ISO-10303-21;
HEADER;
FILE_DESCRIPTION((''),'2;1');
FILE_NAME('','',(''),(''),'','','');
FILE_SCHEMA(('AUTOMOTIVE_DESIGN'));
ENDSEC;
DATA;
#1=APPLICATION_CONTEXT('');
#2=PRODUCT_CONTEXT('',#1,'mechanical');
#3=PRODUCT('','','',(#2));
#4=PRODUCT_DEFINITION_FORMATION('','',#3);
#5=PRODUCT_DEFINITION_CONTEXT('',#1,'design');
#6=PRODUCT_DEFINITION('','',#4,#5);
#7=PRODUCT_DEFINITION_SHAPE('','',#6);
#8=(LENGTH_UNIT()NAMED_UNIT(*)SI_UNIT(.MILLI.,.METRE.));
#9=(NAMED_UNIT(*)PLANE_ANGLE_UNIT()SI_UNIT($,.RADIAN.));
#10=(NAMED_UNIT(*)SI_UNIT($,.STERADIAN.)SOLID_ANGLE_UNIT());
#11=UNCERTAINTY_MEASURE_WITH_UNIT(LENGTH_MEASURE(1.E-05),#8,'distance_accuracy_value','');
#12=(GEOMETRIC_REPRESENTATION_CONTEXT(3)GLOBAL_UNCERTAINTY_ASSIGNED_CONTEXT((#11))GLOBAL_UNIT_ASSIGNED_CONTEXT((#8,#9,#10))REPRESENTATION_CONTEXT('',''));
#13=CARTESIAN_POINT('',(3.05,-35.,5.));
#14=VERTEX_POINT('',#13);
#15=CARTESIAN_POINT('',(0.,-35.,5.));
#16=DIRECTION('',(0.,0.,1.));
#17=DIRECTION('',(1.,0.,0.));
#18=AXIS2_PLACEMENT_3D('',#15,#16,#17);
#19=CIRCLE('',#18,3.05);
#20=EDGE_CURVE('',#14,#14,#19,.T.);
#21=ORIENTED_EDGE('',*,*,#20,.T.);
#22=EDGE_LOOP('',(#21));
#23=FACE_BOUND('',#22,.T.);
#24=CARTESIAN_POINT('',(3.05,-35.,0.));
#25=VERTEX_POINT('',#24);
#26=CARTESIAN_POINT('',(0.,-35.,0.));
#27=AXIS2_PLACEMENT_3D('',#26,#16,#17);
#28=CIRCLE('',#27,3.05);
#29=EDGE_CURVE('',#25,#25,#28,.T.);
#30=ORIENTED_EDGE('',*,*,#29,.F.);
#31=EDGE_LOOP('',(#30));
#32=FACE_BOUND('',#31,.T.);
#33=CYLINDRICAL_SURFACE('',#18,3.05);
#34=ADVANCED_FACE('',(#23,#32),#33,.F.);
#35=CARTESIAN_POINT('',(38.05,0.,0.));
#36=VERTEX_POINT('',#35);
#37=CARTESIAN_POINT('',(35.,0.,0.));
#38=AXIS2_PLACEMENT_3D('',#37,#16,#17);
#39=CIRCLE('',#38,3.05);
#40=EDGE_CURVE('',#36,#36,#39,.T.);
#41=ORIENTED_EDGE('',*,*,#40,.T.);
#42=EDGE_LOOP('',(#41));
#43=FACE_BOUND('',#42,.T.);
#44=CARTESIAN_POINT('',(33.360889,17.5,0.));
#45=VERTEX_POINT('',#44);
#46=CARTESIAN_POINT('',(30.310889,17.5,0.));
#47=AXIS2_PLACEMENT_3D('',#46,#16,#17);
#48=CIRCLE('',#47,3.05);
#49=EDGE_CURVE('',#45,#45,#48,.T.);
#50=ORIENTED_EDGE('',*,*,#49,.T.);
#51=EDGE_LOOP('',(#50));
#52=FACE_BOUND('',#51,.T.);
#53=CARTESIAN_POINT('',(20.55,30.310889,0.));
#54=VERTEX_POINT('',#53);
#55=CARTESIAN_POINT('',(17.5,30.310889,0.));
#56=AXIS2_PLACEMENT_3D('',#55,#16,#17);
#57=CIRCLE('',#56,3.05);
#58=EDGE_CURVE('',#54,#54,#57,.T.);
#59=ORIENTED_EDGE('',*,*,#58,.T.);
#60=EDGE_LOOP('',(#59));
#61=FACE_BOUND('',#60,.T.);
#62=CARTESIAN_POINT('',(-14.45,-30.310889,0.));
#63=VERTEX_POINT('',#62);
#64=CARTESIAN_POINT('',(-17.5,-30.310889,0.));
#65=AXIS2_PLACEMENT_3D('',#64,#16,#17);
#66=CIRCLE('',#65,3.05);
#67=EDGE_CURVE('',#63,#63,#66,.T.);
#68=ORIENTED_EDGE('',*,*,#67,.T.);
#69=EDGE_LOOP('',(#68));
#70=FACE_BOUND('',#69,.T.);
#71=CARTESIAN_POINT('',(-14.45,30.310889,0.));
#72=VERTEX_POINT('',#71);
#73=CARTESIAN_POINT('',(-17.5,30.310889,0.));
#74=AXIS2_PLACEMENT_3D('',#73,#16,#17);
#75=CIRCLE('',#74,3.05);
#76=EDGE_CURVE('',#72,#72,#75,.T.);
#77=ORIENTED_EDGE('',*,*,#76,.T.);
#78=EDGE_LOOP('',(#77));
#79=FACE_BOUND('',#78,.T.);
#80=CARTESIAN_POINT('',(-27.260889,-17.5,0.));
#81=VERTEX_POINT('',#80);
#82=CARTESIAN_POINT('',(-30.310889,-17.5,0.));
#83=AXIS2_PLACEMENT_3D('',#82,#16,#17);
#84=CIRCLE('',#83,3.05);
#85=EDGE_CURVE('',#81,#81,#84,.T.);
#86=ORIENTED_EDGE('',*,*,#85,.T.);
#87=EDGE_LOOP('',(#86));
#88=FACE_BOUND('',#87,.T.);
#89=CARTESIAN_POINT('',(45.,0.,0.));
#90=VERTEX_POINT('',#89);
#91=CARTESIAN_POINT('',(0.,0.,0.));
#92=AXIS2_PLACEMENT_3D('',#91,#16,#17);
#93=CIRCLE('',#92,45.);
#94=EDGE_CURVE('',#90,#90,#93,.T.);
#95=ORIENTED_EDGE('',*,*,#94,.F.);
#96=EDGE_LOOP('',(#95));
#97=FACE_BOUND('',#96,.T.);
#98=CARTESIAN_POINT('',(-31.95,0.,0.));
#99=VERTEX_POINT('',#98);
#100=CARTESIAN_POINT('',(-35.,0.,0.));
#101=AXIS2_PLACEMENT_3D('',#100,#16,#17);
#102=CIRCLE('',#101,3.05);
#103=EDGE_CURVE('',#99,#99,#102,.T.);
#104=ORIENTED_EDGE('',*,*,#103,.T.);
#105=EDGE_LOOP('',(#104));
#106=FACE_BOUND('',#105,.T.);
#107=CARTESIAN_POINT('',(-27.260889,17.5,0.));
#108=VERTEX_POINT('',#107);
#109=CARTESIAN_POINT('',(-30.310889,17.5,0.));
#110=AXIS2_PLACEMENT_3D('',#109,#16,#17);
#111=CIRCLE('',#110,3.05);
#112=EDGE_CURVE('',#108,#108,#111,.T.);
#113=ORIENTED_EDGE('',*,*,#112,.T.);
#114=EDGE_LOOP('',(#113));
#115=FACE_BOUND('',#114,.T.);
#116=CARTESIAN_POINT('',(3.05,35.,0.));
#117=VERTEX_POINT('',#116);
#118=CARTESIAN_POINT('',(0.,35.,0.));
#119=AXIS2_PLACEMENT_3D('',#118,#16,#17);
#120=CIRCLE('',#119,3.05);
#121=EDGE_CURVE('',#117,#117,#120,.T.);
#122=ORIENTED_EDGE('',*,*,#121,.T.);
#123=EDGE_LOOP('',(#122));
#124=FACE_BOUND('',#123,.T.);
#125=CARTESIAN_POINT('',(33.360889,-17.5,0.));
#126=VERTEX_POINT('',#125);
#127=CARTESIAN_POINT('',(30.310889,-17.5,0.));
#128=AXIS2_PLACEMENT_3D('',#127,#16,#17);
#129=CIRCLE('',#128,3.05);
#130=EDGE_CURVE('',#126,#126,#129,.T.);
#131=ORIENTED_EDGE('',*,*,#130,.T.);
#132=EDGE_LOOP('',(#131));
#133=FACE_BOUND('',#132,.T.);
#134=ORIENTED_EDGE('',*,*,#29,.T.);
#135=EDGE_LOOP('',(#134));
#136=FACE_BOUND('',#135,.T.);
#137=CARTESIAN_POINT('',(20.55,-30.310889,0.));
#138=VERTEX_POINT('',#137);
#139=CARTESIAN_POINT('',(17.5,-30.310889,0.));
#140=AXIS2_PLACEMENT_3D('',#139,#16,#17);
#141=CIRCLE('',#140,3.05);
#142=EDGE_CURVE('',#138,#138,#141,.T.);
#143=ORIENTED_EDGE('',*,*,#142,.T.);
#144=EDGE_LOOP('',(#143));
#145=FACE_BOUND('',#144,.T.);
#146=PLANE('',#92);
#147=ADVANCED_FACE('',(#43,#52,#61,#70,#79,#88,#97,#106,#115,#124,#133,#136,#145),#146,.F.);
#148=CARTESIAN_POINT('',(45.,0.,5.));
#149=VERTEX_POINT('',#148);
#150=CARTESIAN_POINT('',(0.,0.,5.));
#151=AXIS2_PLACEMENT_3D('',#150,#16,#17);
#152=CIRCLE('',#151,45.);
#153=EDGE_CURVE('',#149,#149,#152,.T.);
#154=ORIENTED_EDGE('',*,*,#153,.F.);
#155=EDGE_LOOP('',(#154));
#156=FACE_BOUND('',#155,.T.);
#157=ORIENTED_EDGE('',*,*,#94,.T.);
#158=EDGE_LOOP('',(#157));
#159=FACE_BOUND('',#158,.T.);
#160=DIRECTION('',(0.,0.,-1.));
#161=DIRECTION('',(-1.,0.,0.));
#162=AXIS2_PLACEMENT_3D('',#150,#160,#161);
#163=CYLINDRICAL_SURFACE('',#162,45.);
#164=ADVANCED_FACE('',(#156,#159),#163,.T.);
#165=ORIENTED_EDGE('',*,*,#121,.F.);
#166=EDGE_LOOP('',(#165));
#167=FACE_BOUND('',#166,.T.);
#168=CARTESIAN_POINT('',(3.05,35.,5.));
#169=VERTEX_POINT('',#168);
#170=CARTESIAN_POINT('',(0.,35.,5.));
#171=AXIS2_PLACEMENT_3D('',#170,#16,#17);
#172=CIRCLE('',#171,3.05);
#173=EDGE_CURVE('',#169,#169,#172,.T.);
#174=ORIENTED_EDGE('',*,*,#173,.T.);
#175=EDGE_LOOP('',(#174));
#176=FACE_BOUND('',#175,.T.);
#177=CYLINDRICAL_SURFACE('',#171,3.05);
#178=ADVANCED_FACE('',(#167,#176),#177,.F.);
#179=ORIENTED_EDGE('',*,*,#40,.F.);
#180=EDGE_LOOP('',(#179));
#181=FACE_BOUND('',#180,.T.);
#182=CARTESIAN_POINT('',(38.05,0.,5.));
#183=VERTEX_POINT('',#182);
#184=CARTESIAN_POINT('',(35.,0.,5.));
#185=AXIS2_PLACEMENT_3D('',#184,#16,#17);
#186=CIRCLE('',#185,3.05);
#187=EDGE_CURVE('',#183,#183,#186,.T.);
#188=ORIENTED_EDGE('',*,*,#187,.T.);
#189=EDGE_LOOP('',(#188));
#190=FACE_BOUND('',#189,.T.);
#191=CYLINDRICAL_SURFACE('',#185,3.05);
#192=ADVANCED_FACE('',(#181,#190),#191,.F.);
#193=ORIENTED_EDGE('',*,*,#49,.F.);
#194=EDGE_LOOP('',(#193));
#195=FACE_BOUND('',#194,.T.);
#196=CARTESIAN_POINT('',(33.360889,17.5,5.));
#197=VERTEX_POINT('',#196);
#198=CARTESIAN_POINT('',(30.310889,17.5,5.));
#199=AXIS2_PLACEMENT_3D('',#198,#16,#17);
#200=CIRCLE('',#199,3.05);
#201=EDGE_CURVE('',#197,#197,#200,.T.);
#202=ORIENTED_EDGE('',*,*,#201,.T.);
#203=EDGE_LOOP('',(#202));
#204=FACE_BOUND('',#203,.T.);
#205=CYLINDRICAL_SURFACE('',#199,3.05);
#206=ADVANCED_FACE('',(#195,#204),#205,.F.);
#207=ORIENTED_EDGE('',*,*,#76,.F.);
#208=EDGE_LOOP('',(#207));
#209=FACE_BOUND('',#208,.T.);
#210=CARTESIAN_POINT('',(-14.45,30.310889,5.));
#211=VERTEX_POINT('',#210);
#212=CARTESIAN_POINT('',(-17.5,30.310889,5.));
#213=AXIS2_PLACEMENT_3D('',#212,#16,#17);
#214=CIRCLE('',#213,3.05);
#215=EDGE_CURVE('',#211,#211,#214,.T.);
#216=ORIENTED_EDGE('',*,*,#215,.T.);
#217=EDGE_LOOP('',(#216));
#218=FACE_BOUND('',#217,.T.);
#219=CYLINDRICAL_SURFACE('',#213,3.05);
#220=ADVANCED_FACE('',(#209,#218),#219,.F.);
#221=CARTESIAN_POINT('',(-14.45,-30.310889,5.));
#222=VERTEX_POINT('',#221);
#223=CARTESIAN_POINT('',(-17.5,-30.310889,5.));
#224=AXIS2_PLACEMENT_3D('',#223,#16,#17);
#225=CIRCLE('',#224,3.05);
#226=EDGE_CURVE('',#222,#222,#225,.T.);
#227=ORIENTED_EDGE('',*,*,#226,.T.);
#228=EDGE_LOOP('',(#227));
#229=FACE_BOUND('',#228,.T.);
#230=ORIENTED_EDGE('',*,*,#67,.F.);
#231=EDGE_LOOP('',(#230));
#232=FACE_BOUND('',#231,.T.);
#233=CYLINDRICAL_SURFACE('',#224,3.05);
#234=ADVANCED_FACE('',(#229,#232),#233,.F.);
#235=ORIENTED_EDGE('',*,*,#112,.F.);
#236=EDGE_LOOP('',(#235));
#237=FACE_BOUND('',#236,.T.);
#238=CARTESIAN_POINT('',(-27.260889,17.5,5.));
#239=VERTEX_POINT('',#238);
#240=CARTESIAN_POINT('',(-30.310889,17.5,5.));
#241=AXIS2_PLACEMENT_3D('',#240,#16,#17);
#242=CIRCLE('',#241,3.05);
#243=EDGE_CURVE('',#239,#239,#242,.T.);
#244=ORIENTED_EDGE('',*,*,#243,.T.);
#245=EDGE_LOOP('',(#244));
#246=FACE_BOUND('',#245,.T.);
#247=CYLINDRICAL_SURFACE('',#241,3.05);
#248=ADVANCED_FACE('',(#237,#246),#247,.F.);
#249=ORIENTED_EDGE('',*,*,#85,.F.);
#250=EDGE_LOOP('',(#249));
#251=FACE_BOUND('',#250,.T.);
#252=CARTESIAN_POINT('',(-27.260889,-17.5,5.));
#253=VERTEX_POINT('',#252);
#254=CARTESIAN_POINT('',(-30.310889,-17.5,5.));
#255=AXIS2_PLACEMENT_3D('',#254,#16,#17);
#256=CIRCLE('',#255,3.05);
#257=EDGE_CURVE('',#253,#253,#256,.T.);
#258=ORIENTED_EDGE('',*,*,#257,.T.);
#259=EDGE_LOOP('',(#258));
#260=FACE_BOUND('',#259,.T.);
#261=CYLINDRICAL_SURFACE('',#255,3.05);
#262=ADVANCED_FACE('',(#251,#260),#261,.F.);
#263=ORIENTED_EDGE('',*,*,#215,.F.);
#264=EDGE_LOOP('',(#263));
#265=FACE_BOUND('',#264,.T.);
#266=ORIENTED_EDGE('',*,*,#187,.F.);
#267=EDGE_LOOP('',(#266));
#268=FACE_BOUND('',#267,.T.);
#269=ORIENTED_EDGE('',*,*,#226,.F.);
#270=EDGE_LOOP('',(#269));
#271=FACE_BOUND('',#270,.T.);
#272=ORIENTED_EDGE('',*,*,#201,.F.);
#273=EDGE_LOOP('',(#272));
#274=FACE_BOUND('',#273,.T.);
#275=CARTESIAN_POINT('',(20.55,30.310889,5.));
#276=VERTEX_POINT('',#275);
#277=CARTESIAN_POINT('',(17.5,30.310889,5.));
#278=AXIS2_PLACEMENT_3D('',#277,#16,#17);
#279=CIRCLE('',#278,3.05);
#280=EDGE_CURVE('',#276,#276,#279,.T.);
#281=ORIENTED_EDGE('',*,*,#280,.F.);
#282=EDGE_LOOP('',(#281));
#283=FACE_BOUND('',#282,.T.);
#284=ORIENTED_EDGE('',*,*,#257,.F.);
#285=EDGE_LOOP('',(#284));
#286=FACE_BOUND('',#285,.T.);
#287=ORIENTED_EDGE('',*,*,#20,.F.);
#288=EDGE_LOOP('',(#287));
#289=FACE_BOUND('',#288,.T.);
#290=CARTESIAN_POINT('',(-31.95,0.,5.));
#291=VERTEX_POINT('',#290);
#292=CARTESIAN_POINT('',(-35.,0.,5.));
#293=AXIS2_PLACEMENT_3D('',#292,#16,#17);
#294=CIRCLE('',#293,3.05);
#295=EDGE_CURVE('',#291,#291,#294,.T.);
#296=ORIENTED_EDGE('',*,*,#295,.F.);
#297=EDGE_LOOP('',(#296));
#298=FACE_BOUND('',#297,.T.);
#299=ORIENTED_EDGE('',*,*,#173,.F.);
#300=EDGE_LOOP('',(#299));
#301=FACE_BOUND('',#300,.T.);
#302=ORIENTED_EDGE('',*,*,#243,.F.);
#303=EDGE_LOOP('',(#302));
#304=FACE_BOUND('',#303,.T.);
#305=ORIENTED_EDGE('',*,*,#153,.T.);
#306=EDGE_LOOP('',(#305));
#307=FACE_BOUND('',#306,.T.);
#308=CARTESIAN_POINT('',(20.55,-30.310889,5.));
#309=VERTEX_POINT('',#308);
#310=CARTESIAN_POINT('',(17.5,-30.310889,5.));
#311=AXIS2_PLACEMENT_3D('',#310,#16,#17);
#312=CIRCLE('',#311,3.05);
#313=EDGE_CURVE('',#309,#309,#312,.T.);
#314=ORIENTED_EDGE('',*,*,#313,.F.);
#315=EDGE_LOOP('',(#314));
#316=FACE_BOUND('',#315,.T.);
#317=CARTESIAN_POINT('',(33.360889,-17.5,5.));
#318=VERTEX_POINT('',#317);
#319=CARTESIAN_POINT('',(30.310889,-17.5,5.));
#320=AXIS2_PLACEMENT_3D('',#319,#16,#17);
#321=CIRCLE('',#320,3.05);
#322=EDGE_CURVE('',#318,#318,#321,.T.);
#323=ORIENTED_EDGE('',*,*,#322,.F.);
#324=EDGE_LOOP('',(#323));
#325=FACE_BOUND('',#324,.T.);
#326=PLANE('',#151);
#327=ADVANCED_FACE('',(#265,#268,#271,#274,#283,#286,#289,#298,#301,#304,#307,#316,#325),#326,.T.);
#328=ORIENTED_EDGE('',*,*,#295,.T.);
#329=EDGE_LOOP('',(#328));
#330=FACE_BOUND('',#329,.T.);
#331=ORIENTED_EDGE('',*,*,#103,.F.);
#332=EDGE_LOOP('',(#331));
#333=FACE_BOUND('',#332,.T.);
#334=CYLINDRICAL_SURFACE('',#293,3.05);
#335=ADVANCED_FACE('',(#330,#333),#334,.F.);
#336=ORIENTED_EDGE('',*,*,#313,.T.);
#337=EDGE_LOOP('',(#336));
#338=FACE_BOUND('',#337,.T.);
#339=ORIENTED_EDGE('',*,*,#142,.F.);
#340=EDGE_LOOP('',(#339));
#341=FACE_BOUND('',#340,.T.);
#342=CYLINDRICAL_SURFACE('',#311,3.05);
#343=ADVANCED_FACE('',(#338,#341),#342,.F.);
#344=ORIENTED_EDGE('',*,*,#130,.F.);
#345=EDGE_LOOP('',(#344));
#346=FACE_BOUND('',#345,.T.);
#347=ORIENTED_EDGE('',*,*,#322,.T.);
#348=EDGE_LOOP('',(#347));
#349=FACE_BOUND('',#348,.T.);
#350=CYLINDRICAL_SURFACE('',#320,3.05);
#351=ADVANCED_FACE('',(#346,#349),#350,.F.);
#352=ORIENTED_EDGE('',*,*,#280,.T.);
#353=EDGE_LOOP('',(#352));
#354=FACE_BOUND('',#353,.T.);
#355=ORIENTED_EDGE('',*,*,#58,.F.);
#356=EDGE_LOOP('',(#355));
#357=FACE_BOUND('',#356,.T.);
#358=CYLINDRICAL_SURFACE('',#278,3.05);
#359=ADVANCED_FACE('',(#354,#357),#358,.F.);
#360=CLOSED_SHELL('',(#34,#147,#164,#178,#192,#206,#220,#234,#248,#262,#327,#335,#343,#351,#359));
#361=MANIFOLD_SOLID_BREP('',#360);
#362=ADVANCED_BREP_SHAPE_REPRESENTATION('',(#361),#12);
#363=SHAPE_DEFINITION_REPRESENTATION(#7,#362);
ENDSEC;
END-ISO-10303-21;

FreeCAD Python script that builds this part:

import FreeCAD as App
import Part
import Sketcher

doc = App.newDocument("Part")
body = doc.addObject("PartDesign::Body", "Body")

# Sketch on XY plane
sketch1 = body.newObject("Sketcher::SketchObject", "Sketch")
sketch1.AttachmentSupport = (doc.getObject("XY_Plane"), [""])
sketch1.MapMode = "FlatFace"
sketch1.addGeometry(Part.Circle(App.Vector(0, 0, 0), App.Vector(0, 0, 1), 45), False)
sketch1.addConstraint([
    Sketcher.Constraint("Coincident", 0, 3, -1, 1),
    Sketcher.Constraint("Diameter", 0, 90.0),
])
pad1 = body.newObject("PartDesign::Pad", "Pad")
pad1.Profile = sketch1
pad1.Length = 5

# Sketch on XY plane
sketch2 = body.newObject("Sketcher::SketchObject", "Sketch001")
sketch2.AttachmentSupport = (doc.getObject("XY_Plane"), [""])
sketch2.MapMode = "FlatFace"
sketch2.AttachmentOffset = App.Placement(App.Vector(0, 0, 5), App.Rotation())
sketch2.addGeometry([
    Part.Circle(App.Vector(-35, 0, 0), App.Vector(0, 0, 1), 3),  # 0
    Part.Circle(App.Vector(-30.3, 17.5, 0), App.Vector(0, 0, 1), 3),  # 1
    Part.Circle(App.Vector(-17.5, 30.3, 0), App.Vector(0, 0, 1), 3),  # 2
    Part.Circle(App.Vector(0, 35, 0), App.Vector(0, 0, 1), 3),  # 3
    Part.Circle(App.Vector(17.5, 30.3, 0), App.Vector(0, 0, 1), 3),  # 4
    Part.Circle(App.Vector(30.3, 17.5, 0), App.Vector(0, 0, 1), 3),  # 5
    Part.Circle(App.Vector(35, 0, 0), App.Vector(0, 0, 1), 3),  # 6
    Part.Circle(App.Vector(30.3, -17.5, 0), App.Vector(0, 0, 1), 3),  # 7
    Part.Circle(App.Vector(17.5, -30.3, 0), App.Vector(0, 0, 1), 3),  # 8
    Part.Circle(App.Vector(0, -35, 0), App.Vector(0, 0, 1), 3),  # 9
    Part.Circle(App.Vector(-17.5, -30.3, 0), App.Vector(0, 0, 1), 3),  # 10
    Part.Circle(App.Vector(-30.3, -17.5, 0), App.Vector(0, 0, 1), 3),  # 11
], False)
sketch2.addConstraint([
    Sketcher.Constraint("Equal", 0, 1),
    Sketcher.Constraint("Equal", 1, 2),
    Sketcher.Constraint("Equal", 2, 3),
    Sketcher.Constraint("Equal", 3, 4),
    Sketcher.Constraint("Equal", 4, 5),
    Sketcher.Constraint("Equal", 5, 6),
    Sketcher.Constraint("Equal", 6, 7),
    Sketcher.Constraint("Equal", 7, 8),
    Sketcher.Constraint("Equal", 8, 9),
    Sketcher.Constraint("Equal", 9, 10),
    Sketcher.Constraint("Equal", 10, 11),
    Sketcher.Constraint("Symmetric", 0, 3, 6, 3, -1, 1),
    Sketcher.Constraint("Symmetric", 1, 3, 7, 3, -1, 1),
    Sketcher.Constraint("Symmetric", 2, 3, 8, 3, -1, 1),
    Sketcher.Constraint("Symmetric", 3, 3, 9, 3, -1, 1),
    Sketcher.Constraint("Symmetric", 4, 3, 10, 3, -1, 1),
    Sketcher.Constraint("Symmetric", 5, 3, 11, 3, -1, 1),
    Sketcher.Constraint("Symmetric", 2, 3, 4, 3, -2),
    Sketcher.Constraint("Symmetric", 1, 3, 5, 3, -2),
    Sketcher.Constraint("PointOnObject", 0, 3, -1),
    Sketcher.Constraint("PointOnObject", 3, 3, -2),
    Sketcher.Constraint("Diameter", 0, 6.1),
    Sketcher.Constraint("DistanceX", 0, 3, -1, 1, 35.0),
    Sketcher.Constraint("DistanceY", -1, 1, 3, 3, 35.0),
    Sketcher.Constraint("DistanceX", 2, 3, 4, 3, 35.0),
    Sketcher.Constraint("DistanceY", 7, 3, 5, 3, 35.0),
    Sketcher.Constraint("DistanceX", 1, 3, -1, 1, 30.310889),
    Sketcher.Constraint("DistanceY", -1, 1, 2, 3, 30.310889),
])
doc.recompute()
hole = body.newObject("PartDesign::Hole", "Hole")
hole.Profile = sketch2
hole.ThreadType = "None"
hole.Diameter = 6.1
hole.DepthType = "Dimension"
hole.Depth = 10
hole.DrillPoint = "Angled"
hole.DrillPointAngle = 118

doc.recompute()
